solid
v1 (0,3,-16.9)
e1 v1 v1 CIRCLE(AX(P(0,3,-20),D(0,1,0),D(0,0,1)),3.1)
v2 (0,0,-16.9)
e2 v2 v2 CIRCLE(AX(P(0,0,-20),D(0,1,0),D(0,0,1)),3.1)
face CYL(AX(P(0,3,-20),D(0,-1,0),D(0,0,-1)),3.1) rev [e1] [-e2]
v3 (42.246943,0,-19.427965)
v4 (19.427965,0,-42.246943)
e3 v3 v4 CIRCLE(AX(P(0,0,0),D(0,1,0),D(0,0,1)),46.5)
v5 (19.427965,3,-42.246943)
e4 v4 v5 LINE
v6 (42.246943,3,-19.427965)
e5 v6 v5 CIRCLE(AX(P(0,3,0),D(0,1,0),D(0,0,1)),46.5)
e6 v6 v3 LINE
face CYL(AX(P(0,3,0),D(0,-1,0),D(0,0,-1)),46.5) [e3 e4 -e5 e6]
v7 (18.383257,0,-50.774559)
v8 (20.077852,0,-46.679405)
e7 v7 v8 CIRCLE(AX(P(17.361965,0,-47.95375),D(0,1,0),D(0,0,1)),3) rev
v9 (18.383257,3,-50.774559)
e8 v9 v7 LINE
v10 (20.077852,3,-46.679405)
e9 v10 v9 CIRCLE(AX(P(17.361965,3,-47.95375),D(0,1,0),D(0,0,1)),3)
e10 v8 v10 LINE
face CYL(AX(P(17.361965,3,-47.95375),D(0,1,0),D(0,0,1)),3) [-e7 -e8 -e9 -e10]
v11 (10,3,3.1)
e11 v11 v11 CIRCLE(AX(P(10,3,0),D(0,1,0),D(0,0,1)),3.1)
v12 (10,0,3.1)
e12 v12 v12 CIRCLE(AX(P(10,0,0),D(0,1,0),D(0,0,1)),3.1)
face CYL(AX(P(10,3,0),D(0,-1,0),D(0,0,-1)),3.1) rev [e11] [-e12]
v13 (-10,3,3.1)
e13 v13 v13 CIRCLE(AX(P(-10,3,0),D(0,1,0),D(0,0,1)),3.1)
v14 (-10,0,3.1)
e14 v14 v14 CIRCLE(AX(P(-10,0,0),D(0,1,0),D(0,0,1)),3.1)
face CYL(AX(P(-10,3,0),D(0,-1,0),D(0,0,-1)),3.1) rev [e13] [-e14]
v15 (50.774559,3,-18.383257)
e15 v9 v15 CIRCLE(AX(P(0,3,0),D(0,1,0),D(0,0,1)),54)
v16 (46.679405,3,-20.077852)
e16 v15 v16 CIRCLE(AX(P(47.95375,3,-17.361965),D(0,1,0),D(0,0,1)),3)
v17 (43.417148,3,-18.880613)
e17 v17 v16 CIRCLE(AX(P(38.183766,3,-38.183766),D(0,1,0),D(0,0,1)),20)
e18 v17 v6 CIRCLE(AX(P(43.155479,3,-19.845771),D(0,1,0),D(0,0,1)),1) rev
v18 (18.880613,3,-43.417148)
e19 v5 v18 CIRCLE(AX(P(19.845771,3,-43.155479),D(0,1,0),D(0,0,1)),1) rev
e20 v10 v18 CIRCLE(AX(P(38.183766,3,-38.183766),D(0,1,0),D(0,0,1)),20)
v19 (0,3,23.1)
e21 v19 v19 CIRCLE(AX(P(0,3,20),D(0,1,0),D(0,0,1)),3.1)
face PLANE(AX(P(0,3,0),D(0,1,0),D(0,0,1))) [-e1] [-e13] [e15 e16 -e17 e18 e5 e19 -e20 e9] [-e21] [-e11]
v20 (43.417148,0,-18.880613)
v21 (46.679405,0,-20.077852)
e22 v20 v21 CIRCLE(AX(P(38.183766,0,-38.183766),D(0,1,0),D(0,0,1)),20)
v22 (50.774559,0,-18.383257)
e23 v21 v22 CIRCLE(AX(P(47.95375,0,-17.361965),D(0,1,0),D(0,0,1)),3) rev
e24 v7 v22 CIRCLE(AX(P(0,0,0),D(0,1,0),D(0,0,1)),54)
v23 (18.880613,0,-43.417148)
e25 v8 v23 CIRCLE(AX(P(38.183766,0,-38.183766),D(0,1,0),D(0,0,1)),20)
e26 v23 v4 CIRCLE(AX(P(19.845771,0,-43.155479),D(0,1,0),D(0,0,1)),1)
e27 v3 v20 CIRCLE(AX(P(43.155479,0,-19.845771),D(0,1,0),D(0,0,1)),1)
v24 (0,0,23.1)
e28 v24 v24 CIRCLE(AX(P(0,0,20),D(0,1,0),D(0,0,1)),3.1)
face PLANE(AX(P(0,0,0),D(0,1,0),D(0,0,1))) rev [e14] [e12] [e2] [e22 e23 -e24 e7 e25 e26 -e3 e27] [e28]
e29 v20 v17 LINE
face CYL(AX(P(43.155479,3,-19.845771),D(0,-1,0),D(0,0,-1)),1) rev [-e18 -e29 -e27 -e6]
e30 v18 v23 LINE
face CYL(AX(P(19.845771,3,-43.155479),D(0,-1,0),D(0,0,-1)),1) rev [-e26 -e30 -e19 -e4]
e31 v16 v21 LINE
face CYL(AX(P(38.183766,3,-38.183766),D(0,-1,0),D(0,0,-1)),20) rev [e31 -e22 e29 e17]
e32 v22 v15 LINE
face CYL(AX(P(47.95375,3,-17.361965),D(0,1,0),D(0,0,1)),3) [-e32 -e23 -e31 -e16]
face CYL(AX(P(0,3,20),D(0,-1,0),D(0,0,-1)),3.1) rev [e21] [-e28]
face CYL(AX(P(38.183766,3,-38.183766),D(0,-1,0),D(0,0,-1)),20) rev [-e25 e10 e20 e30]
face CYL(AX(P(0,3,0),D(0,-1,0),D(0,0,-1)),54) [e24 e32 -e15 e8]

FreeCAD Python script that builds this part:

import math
import FreeCAD as App
import Part
import Sketcher


def edges_at(feature, points):
    """Names of the edges that pass closest to the given points."""
    edges = feature.Shape.Edges
    near = lambda p: min(range(len(edges)), key=lambda i: edges[i].distToShape(Part.Vertex(*p))[0])
    return sorted({f"Edge{near(p) + 1}" for p in points})

doc = App.newDocument("Part")
params = doc.addObject("Spreadsheet::Sheet", "Params")
for row, (alias, value) in enumerate([
    ("sketch1_radius", "54 mm"),
    ("sketch1_radius2", "20 mm"),
    ("sketch1_diameter", "6.2 mm"),
    ("sketch1_radius3", "46.5 mm"),
    ("pad1_length", "3 mm"),
    ("fillet_radius", "3 mm"),
    ("fillet2_radius", "1 mm"),
], start=1):
    params.set(f"A{row}", alias)
    params.set(f"B{row}", "=" + value)
    params.setAlias(f"B{row}", alias)

body = doc.addObject("PartDesign::Body", "Body")

# Sketch on XZ plane
sketch1 = body.newObject("Sketcher::SketchObject", "Sketch")
sketch1.AttachmentSupport = (doc.getObject("XZ_Plane"), [""])
sketch1.MapMode = "FlatFace"
sketch1.addGeometry([
    Part.ArcOfCircle(Part.Circle(App.Vector(0, 0, 0), App.Vector(0, 0, 1), 54), math.radians(-24), math.radians(294)),  # 0
    Part.ArcOfCircle(Part.Circle(App.Vector(38.2, -38.2, 0), App.Vector(0, 0, 1), 20), math.radians(56), math.radians(77)),  # 1
    Part.ArcOfCircle(Part.Circle(App.Vector(0, 0, 0), App.Vector(0, 0, 1), 46.5), math.radians(-66), math.radians(-24)),  # 2
    Part.ArcOfCircle(Part.Circle(App.Vector(38.2, -38.2, 0), App.Vector(0, 0, 1), 20), math.radians(-167), math.radians(-146)),  # 3
    Part.Circle(App.Vector(0, 20, 0), App.Vector(0, 0, 1), 3.1),  # 4
    Part.Circle(App.Vector(-10, 0, 0), App.Vector(0, 0, 1), 3.1),  # 5
    Part.Circle(App.Vector(10, 0, 0), App.Vector(0, 0, 1), 3.1),  # 6
    Part.Circle(App.Vector(0, -20, 0), App.Vector(0, 0, 1), 3.1),  # 7
], False)
sketch1.addConstraint([
    Sketcher.Constraint("Coincident", 0, 1, 1, 1),
    Sketcher.Constraint("Coincident", 1, 2, 2, 2),
    Sketcher.Constraint("Coincident", 2, 1, 3, 1),
    Sketcher.Constraint("Coincident", 3, 2, 0, 2),
    Sketcher.Constraint("Coincident", 0, 3, -1, 1),
    Sketcher.Constraint("Coincident", 2, 3, -1, 1),
    Sketcher.Constraint("Coincident", 3, 3, 1, 3),
    Sketcher.Constraint("Equal", 1, 3),
    Sketcher.Constraint("Equal", 4, 5),
    Sketcher.Constraint("Equal", 5, 6),
    Sketcher.Constraint("Equal", 6, 7),
    Sketcher.Constraint("Symmetric", 5, 3, 6, 3, -1, 1),
    Sketcher.Constraint("Symmetric", 4, 3, 7, 3, -1, 1),
    Sketcher.Constraint("PointOnObject", 4, 3, -2),
    Sketcher.Constraint("PointOnObject", 5, 3, -1),
    Sketcher.Constraint("Radius", 0, 54.0),
    Sketcher.Constraint("Radius", 1, 20.0),
    Sketcher.Constraint("Diameter", 4, 6.2),
    Sketcher.Constraint("Radius", 2, 46.5),
    Sketcher.Constraint("DistanceY", -1, 1, 4, 3, 20.0),
    Sketcher.Constraint("DistanceX", 5, 3, -1, 1, 10.0),
    Sketcher.Constraint("DistanceX", -1, 1, 0, 1, 49.46238),
    Sketcher.Constraint("DistanceX", -1, 1, 1, 2, 42.58551),
])
sketch1.setExpression("Constraints[15]", "Params.sketch1_radius")
sketch1.setExpression("Constraints[16]", "Params.sketch1_radius2")
sketch1.setExpression("Constraints[17]", "Params.sketch1_diameter")
sketch1.setExpression("Constraints[18]", "Params.sketch1_radius3")
pad1 = body.newObject("PartDesign::Pad", "Pad")
pad1.Profile = sketch1
pad1.setExpression("Length", "Params.pad1_length")
pad1.Reversed = True
doc.recompute()

fillet = body.newObject("PartDesign::Fillet", "Fillet")
fillet.Base = (pad1, edges_at(pad1, [(49.462, 1.5, -21.667), (21.667, 1.5, -49.462)]))
fillet.setExpression("Radius", "Params.fillet_radius")
doc.recompute()

fillet2 = body.newObject("PartDesign::Fillet", "Fillet001")
fillet2.Base = (fillet, edges_at(fillet, [(18.674, 1.5, -42.586), (42.586, 1.5, -18.674)]))
fillet2.setExpression("Radius", "Params.fillet2_radius")

doc.recompute()
